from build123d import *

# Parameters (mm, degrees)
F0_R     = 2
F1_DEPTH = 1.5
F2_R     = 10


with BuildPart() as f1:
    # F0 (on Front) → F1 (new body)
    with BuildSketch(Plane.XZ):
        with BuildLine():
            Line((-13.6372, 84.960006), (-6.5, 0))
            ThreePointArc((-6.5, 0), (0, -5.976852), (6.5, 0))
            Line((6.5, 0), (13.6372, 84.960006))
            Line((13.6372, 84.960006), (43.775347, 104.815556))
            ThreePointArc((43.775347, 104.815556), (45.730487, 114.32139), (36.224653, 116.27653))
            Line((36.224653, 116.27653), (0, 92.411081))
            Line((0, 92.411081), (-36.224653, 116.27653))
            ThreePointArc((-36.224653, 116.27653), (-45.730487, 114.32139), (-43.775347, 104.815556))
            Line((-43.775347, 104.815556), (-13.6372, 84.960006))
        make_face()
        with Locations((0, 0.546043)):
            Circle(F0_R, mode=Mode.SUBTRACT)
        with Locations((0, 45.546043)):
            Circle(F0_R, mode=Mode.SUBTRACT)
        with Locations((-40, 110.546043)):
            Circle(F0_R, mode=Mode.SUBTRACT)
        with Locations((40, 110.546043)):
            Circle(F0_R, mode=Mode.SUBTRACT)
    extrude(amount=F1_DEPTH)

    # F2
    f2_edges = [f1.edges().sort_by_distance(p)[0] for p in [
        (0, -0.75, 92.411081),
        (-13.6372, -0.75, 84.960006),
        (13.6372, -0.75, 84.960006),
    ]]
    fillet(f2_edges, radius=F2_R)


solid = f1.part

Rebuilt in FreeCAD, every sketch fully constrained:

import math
import FreeCAD as App
import Part
import Sketcher
from FreeCAD import Vector
Q = App.Units.Quantity


def edges_at(feature, points):
    """Names of the edges that pass closest to the given points."""
    edges = feature.Shape.Edges
    near = lambda p: min(range(len(edges)), key=lambda i: edges[i].distToShape(Part.Vertex(*p))[0])
    return sorted({f"Edge{near(p) + 1}" for p in points})

doc = App.newDocument("Part")
body = doc.addObject("PartDesign::Body", "Body")

# Sketch on XZ plane
sketch1 = doc.addObject("Sketcher::SketchObject", "Sketch")
body.addObject(sketch1)
sketch1.AttachmentSupport = (doc.XZ_Plane, [""])
sketch1.MapMode = "FlatFace"
sketch1.addGeometry([
    Part.LineSegment(Vector(-13.6372, 84.960006, 0), Vector(-6.5, 0, 0)),  # 0
    Part.ArcOfCircle(Part.Circle(Vector(0, 0.546043, 0), Vector(0, 0, 1), 6.522895), math.radians(-175.198048), math.radians(-4.801952)),  # 1
    Part.LineSegment(Vector(6.5, 0, 0), Vector(13.6372, 84.960006, 0)),  # 2
    Part.LineSegment(Vector(13.6372, 84.960006, 0), Vector(43.775347, 104.815556, 0)),  # 3
    Part.ArcOfCircle(Part.Circle(Vector(40, 110.546043, 0), Vector(0, 0, 1), 6.862341), math.radians(-56.622396), math.radians(123.377604)),  # 4
    Part.LineSegment(Vector(36.224653, 116.27653, 0), Vector(0, 92.411081, 0)),  # 5
    Part.LineSegment(Vector(0, 92.411081, 0), Vector(-36.224653, 116.27653, 0)),  # 6
    Part.ArcOfCircle(Part.Circle(Vector(-40, 110.546043, 0), Vector(0, 0, 1), 6.862341), math.radians(56.622396), math.radians(236.622396)),  # 7
    Part.LineSegment(Vector(-43.775347, 104.815556, 0), Vector(-13.6372, 84.960006, 0)),  # 8
    Part.Circle(Vector(0, 0.546043, 0), Vector(0, 0, 1), 2),  # 9
    Part.Circle(Vector(0, 45.546043, 0), Vector(0, 0, 1), 2),  # 10
    Part.Circle(Vector(-40, 110.546043, 0), Vector(0, 0, 1), 2),  # 11
    Part.Circle(Vector(40, 110.546043, 0), Vector(0, 0, 1), 2),  # 12
], False)
sketch1.addConstraint([
    Sketcher.Constraint("Coincident", 0, 2, 1, 1),
    Sketcher.Constraint("Coincident", 1, 2, 2, 1),
    Sketcher.Constraint("Coincident", 2, 2, 3, 1),
    Sketcher.Constraint("Coincident", 3, 2, 4, 1),
    Sketcher.Constraint("Coincident", 4, 2, 5, 1),
    Sketcher.Constraint("Coincident", 5, 2, 6, 1),
    Sketcher.Constraint("Coincident", 6, 2, 7, 1),
    Sketcher.Constraint("Coincident", 7, 2, 8, 1),
    Sketcher.Constraint("Coincident", 8, 2, 0, 1),
    Sketcher.Constraint("Coincident", 9, 3, 1, 3),
    Sketcher.Constraint("Coincident", 11, 3, 7, 3),
    Sketcher.Constraint("Coincident", 12, 3, 4, 3),
    Sketcher.Constraint("PointOnObject", 1, 3, -2),
    Sketcher.Constraint("PointOnObject", 10, 3, -2),
    Sketcher.Constraint("PointOnObject", 0, 2, -1),
    Sketcher.Constraint("PointOnObject", 1, 2, -1),
    Sketcher.Constraint("PointOnObject", 5, 2, -2),
    Sketcher.Constraint("Diameter", 9, Q("4 mm")),
    Sketcher.Constraint("Diameter", 10, Q("4 mm")),
    Sketcher.Constraint("Diameter", 11, Q("4 mm")),
    Sketcher.Constraint("Diameter", 12, Q("4 mm")),
    Sketcher.Constraint("DistanceX", -1, 1, 4, 3, Q("40 mm")),
    Sketcher.Constraint("DistanceX", 7, 3, -1, 1, Q("40 mm")),
    Sketcher.Constraint("DistanceY", 1, 3, 4, 3, Q("110 mm")),
    Sketcher.Constraint("DistanceY", 1, 3, 7, 3, Q("110 mm")),
    Sketcher.Constraint("DistanceY", 1, 3, 10, 3, Q("45 mm")),
    Sketcher.Constraint("DistanceX", 0, 2, 1, 2, Q("13 mm")),
    Sketcher.Constraint("Radius", 4, Q("6.862341 mm")),
    Sketcher.Constraint("Radius", 7, Q("6.862341 mm")),
    Sketcher.Constraint("Radius", 1, Q("6.522895 mm")),
    Sketcher.Constraint("DistanceX", -1, 1, 2, 2, Q("13.6372 mm")),
    Sketcher.Constraint("DistanceX", 8, 2, -1, 1, Q("13.6372 mm")),
    Sketcher.Constraint("Distance", 3, Q("36.090868 mm")),
    Sketcher.Constraint("Distance", 8, Q("36.090868 mm")),
    Sketcher.Constraint("DistanceY", -1, 1, 4, 2, Q("116.27653 mm")),
    Sketcher.Constraint("DistanceY", -1, 1, 5, 2, Q("92.411081 mm")),
    Sketcher.Constraint("DistanceY", -1, 1, 6, 2, Q("116.27653 mm")),
    Sketcher.Constraint("DistanceY", 2, 2, 3, 2, Q("19.85555 mm")),
    Sketcher.Constraint("DistanceY", 2, 2, 7, 2, Q("19.85555 mm")),
])
pad1 = doc.addObject("PartDesign::Pad", "Pad")
body.addObject(pad1)
pad1.Profile = sketch1
pad1.Length = 1.5
doc.recompute()

fillet = doc.addObject("PartDesign::Fillet", "Fillet")
body.addObject(fillet)
fillet.Base = (pad1, edges_at(pad1, [(0, -0.75, 92.411), (-13.637, -0.75, 84.96), (13.637, -0.75, 84.96)]))
fillet.Radius = 10

doc.recompute()
